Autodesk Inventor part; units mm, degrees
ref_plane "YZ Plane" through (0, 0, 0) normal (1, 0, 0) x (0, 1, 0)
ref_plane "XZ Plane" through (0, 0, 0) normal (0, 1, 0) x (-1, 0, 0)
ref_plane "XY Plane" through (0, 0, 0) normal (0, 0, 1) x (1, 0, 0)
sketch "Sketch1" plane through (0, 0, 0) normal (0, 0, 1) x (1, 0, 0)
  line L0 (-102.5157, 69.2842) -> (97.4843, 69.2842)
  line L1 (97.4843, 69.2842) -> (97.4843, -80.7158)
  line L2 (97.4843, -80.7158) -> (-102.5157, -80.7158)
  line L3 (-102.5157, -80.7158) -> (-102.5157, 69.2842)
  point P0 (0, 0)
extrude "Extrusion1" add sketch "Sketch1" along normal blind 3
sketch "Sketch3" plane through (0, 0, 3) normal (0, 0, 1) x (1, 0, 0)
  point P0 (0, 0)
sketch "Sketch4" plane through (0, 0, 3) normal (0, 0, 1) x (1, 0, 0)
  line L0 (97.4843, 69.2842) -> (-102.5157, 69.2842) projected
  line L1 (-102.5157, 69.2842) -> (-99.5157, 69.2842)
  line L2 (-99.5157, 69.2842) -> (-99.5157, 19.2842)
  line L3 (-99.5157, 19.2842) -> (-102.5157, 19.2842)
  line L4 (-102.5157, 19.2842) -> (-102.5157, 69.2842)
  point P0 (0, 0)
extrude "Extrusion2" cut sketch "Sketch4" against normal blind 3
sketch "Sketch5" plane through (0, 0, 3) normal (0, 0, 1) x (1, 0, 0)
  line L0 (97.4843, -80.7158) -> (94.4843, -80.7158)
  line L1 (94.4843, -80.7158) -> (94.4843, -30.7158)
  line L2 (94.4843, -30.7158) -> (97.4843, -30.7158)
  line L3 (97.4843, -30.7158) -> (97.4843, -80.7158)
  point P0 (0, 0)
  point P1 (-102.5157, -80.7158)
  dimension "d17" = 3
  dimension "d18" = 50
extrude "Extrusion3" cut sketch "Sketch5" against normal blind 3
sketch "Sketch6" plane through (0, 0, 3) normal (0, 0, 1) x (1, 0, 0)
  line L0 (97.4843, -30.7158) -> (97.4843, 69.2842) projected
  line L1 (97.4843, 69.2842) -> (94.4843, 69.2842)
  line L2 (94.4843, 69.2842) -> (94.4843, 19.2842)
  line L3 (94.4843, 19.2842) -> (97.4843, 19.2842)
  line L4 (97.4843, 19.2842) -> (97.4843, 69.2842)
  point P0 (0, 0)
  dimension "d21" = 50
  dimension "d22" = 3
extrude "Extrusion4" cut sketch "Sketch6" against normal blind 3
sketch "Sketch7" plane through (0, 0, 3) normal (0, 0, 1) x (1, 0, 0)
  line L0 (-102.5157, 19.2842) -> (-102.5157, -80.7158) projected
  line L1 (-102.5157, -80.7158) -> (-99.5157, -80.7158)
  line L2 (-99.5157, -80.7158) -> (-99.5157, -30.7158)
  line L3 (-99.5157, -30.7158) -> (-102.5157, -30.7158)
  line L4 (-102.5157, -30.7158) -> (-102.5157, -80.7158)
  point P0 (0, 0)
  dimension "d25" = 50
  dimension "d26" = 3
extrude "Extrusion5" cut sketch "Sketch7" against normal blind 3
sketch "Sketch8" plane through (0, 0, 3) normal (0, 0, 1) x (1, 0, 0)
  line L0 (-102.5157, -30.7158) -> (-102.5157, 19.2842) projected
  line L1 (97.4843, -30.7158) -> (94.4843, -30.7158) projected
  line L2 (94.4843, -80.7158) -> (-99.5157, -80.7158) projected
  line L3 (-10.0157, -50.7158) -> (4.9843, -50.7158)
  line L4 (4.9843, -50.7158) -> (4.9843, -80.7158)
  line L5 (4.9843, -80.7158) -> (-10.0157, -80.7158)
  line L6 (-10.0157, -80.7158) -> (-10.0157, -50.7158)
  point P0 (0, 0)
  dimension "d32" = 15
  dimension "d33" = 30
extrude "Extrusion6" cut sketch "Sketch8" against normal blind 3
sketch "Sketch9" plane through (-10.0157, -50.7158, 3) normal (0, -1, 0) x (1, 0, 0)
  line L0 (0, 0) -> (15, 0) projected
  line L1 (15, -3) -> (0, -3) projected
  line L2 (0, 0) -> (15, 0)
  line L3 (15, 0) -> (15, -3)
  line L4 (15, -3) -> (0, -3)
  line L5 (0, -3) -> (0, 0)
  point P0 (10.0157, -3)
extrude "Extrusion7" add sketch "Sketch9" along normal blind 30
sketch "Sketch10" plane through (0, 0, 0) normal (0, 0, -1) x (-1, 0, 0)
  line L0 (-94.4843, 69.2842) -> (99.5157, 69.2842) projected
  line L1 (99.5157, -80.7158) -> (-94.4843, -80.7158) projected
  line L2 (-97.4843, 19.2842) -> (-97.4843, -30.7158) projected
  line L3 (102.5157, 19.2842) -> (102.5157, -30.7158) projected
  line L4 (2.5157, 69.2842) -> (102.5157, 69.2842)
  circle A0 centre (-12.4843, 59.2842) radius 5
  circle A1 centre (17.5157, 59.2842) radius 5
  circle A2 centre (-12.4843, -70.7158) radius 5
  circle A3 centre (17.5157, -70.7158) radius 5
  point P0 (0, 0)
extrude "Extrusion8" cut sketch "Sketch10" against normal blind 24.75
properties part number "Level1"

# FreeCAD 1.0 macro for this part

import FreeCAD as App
import Part
import Sketcher
Q = App.Units.Quantity

doc = App.newDocument("Part")
body = doc.addObject("PartDesign::Body", "Body")

# Sketch on XY plane
sketch1 = doc.addObject("Sketcher::SketchObject", "Sketch")
body.addObject(sketch1)
sketch1.AttachmentSupport = (doc.XY_Plane, [""])
sketch1.MapMode = "FlatFace"
sketch1.addGeometry([
    Part.LineSegment(App.Vector(97, 69, 0), App.Vector(-103, 69, 0)),
    Part.LineSegment(App.Vector(-103, 69, 0), App.Vector(-103, -81, 0)),
    Part.LineSegment(App.Vector(-103, -81, 0), App.Vector(97, -81, 0)),
    Part.LineSegment(App.Vector(97, -81, 0), App.Vector(97, 69, 0)),
], False)
sketch1.addConstraint([
    Sketcher.Constraint("Coincident", 0, 2, 1, 1),
    Sketcher.Constraint("Coincident", 1, 2, 2, 1),
    Sketcher.Constraint("Coincident", 2, 2, 3, 1),
    Sketcher.Constraint("Coincident", 3, 2, 0, 1),
    Sketcher.Constraint("Horizontal", 0),
    Sketcher.Constraint("Vertical", 1),
    Sketcher.Constraint("Horizontal", 2),
    Sketcher.Constraint("Vertical", 3),
    Sketcher.Constraint("DistanceX", 0, 2, 0, 1, Q("200 mm")),
    Sketcher.Constraint("DistanceY", 1, 2, 1, 1, Q("150 mm")),
    Sketcher.Constraint("DistanceX", 0, 2, -1, 1, Q("102.5157 mm")),
    Sketcher.Constraint("DistanceY", -1, 1, 0, 2, Q("69.2842 mm")),
])
pad1 = doc.addObject("PartDesign::Pad", "Pad")
body.addObject(pad1)
pad1.Profile = sketch1
pad1.Length = 3

# Sketch on XY plane
sketch2 = doc.addObject("Sketcher::SketchObject", "Sketch001")
body.addObject(sketch2)
sketch2.AttachmentSupport = (doc.XY_Plane, [""])
sketch2.MapMode = "FlatFace"
sketch2.AttachmentOffset = App.Placement(App.Vector(0, 0, 3), App.Rotation())
sketch2.addGeometry([
    Part.LineSegment(App.Vector(-99.5, 19.3, 0), App.Vector(-99.5, 69.3, 0)),
    Part.LineSegment(App.Vector(-99.5, 69.3, 0), App.Vector(-102.5, 69.3, 0)),
    Part.LineSegment(App.Vector(-102.5, 69.3, 0), App.Vector(-102.5, 19.3, 0)),
    Part.LineSegment(App.Vector(-102.5, 19.3, 0), App.Vector(-99.5, 19.3, 0)),
], False)
sketch2.addConstraint([
    Sketcher.Constraint("Coincident", 0, 2, 1, 1),
    Sketcher.Constraint("Coincident", 1, 2, 2, 1),
    Sketcher.Constraint("Coincident", 2, 2, 3, 1),
    Sketcher.Constraint("Coincident", 3, 2, 0, 1),
    Sketcher.Constraint("Vertical", 0),
    Sketcher.Constraint("Horizontal", 1),
    Sketcher.Constraint("Vertical", 2),
    Sketcher.Constraint("Horizontal", 3),
    Sketcher.Constraint("DistanceX", 1, 2, 1, 1, Q("3 mm")),
    Sketcher.Constraint("DistanceY", 0, 1, 0, 2, Q("50 mm")),
    Sketcher.Constraint("DistanceX", 0, 2, -1, 1, Q("99.5157 mm")),
    Sketcher.Constraint("DistanceY", -1, 1, 0, 2, Q("69.2842 mm")),
])
pocket1 = doc.addObject("PartDesign::Pocket", "Pocket")
body.addObject(pocket1)
pocket1.Profile = sketch2
pocket1.Length = 3

# Sketch on XY plane
sketch3 = doc.addObject("Sketcher::SketchObject", "Sketch002")
body.addObject(sketch3)
sketch3.AttachmentSupport = (doc.XY_Plane, [""])
sketch3.MapMode = "FlatFace"
sketch3.AttachmentOffset = App.Placement(App.Vector(0, 0, 3), App.Rotation())
sketch3.addGeometry([
    Part.LineSegment(App.Vector(94.5, -80.7, 0), App.Vector(97.5, -80.7, 0)),
    Part.LineSegment(App.Vector(97.5, -80.7, 0), App.Vector(97.5, -30.7, 0)),
    Part.LineSegment(App.Vector(97.5, -30.7, 0), App.Vector(94.5, -30.7, 0)),
    Part.LineSegment(App.Vector(94.5, -30.7, 0), App.Vector(94.5, -80.7, 0)),
], False)
sketch3.addConstraint([
    Sketcher.Constraint("Coincident", 0, 2, 1, 1),
    Sketcher.Constraint("Coincident", 1, 2, 2, 1),
    Sketcher.Constraint("Coincident", 2, 2, 3, 1),
    Sketcher.Constraint("Coincident", 3, 2, 0, 1),
    Sketcher.Constraint("Horizontal", 0),
    Sketcher.Constraint("Vertical", 1),
    Sketcher.Constraint("Horizontal", 2),
    Sketcher.Constraint("Vertical", 3),
    Sketcher.Constraint("DistanceX", 0, 1, 0, 2, Q("3 mm")),
    Sketcher.Constraint("DistanceY", 1, 1, 1, 2, Q("50 mm")),
    Sketcher.Constraint("DistanceX", -1, 1, 0, 2, Q("97.4843 mm")),
    Sketcher.Constraint("DistanceY", 0, 2, -1, 1, Q("80.7158 mm")),
])
pocket2 = doc.addObject("PartDesign::Pocket", "Pocket001")
body.addObject(pocket2)
pocket2.Profile = sketch3
pocket2.Length = 3

# Sketch on XY plane
sketch4 = doc.addObject("Sketcher::SketchObject", "Sketch003")
body.addObject(sketch4)
sketch4.AttachmentSupport = (doc.XY_Plane, [""])
sketch4.MapMode = "FlatFace"
sketch4.AttachmentOffset = App.Placement(App.Vector(0, 0, 3), App.Rotation())
sketch4.addGeometry([
    Part.LineSegment(App.Vector(94.5, 19.3, 0), App.Vector(97.5, 19.3, 0)),
    Part.LineSegment(App.Vector(97.5, 19.3, 0), App.Vector(97.5, 69.3, 0)),
    Part.LineSegment(App.Vector(97.5, 69.3, 0), App.Vector(94.5, 69.3, 0)),
    Part.LineSegment(App.Vector(94.5, 69.3, 0), App.Vector(94.5, 19.3, 0)),
], False)
sketch4.addConstraint([
    Sketcher.Constraint("Coincident", 0, 2, 1, 1),
    Sketcher.Constraint("Coincident", 1, 2, 2, 1),
    Sketcher.Constraint("Coincident", 2, 2, 3, 1),
    Sketcher.Constraint("Coincident", 3, 2, 0, 1),
    Sketcher.Constraint("Horizontal", 0),
    Sketcher.Constraint("Vertical", 1),
    Sketcher.Constraint("Horizontal", 2),
    Sketcher.Constraint("Vertical", 3),
    Sketcher.Constraint("DistanceX", 0, 1, 0, 2, Q("3 mm")),
    Sketcher.Constraint("DistanceY", 1, 1, 1, 2, Q("50 mm")),
    Sketcher.Constraint("DistanceX", -1, 1, 0, 2, Q("97.4843 mm")),
    Sketcher.Constraint("DistanceY", -1, 1, 0, 2, Q("19.2842 mm")),
])
pocket3 = doc.addObject("PartDesign::Pocket", "Pocket002")
body.addObject(pocket3)
pocket3.Profile = sketch4
pocket3.Length = 3

# Sketch on XY plane
sketch5 = doc.addObject("Sketcher::SketchObject", "Sketch004")
body.addObject(sketch5)
sketch5.AttachmentSupport = (doc.XY_Plane, [""])
sketch5.MapMode = "FlatFace"
sketch5.AttachmentOffset = App.Placement(App.Vector(0, 0, 3), App.Rotation())
sketch5.addGeometry([
    Part.LineSegment(App.Vector(-99.5, -30.7, 0), App.Vector(-102.5, -30.7, 0)),
    Part.LineSegment(App.Vector(-102.5, -30.7, 0), App.Vector(-102.5, -80.7, 0)),
    Part.LineSegment(App.Vector(-102.5, -80.7, 0), App.Vector(-99.5, -80.7, 0)),
    Part.LineSegment(App.Vector(-99.5, -80.7, 0), App.Vector(-99.5, -30.7, 0)),
], False)
sketch5.addConstraint([
    Sketcher.Constraint("Coincident", 0, 2, 1, 1),
    Sketcher.Constraint("Coincident", 1, 2, 2, 1),
    Sketcher.Constraint("Coincident", 2, 2, 3, 1),
    Sketcher.Constraint("Coincident", 3, 2, 0, 1),
    Sketcher.Constraint("Horizontal", 0),
    Sketcher.Constraint("Vertical", 1),
    Sketcher.Constraint("Horizontal", 2),
    Sketcher.Constraint("Vertical", 3),
    Sketcher.Constraint("DistanceX", 0, 2, 0, 1, Q("3 mm")),
    Sketcher.Constraint("DistanceY", 1, 2, 1, 1, Q("50 mm")),
    Sketcher.Constraint("DistanceX", 0, 2, -1, 1, Q("102.5157 mm")),
    Sketcher.Constraint("DistanceY", 0, 2, -1, 1, Q("30.7158 mm")),
])
pocket4 = doc.addObject("PartDesign::Pocket", "Pocket003")
body.addObject(pocket4)
pocket4.Profile = sketch5
pocket4.Length = 3

# Sketch on XY plane
sketch6 = doc.addObject("Sketcher::SketchObject", "Sketch005")
body.addObject(sketch6)
sketch6.AttachmentSupport = (doc.XY_Plane, [""])
sketch6.MapMode = "FlatFace"
sketch6.AttachmentOffset = App.Placement(App.Vector(0, 0, 3), App.Rotation())
sketch6.addGeometry([
    Part.LineSegment(App.Vector(-10, -81, 0), App.Vector(5, -81, 0)),
    Part.LineSegment(App.Vector(5, -81, 0), App.Vector(5, -51, 0)),
    Part.LineSegment(App.Vector(5, -51, 0), App.Vector(-10, -51, 0)),
    Part.LineSegment(App.Vector(-10, -51, 0), App.Vector(-10, -81, 0)),
], False)
sketch6.addConstraint([
    Sketcher.Constraint("Coincident", 0, 2, 1, 1),
    Sketcher.Constraint("Coincident", 1, 2, 2, 1),
    Sketcher.Constraint("Coincident", 2, 2, 3, 1),
    Sketcher.Constraint("Coincident", 3, 2, 0, 1),
    Sketcher.Constraint("Horizontal", 0),
    Sketcher.Constraint("Vertical", 1),
    Sketcher.Constraint("Horizontal", 2),
    Sketcher.Constraint("Vertical", 3),
    Sketcher.Constraint("DistanceX", 0, 1, 0, 2, Q("15 mm")),
    Sketcher.Constraint("DistanceY", 1, 1, 1, 2, Q("30 mm")),
    Sketcher.Constraint("DistanceX", -1, 1, 0, 2, Q("4.9843 mm")),
    Sketcher.Constraint("DistanceY", 0, 2, -1, 1, Q("80.7158 mm")),
])
pocket5 = doc.addObject("PartDesign::Pocket", "Pocket004")
body.addObject(pocket5)
pocket5.Profile = sketch6
pocket5.Length = 3

# Sketch on XZ plane
sketch7 = doc.addObject("Sketcher::SketchObject", "Sketch006")
body.addObject(sketch7)
sketch7.AttachmentSupport = (doc.XZ_Plane, [""])
sketch7.MapMode = "FlatFace"
sketch7.AttachmentOffset = App.Placement(App.Vector(0, 0, 50.7158), App.Rotation())
sketch7.addGeometry([
    Part.LineSegment(App.Vector(5, 3, 0), App.Vector(-10, 3, 0)),
    Part.LineSegment(App.Vector(-10, 3, 0), App.Vector(-10, 0, 0)),
    Part.LineSegment(App.Vector(-10, 0, 0), App.Vector(5, 0, 0)),
    Part.LineSegment(App.Vector(5, 0, 0), App.Vector(5, 3, 0)),
], False)
sketch7.addConstraint([
    Sketcher.Constraint("Coincident", 0, 2, 1, 1),
    Sketcher.Constraint("Coincident", 1, 2, 2, 1),
    Sketcher.Constraint("Coincident", 2, 2, 3, 1),
    Sketcher.Constraint("Coincident", 3, 2, 0, 1),
    Sketcher.Constraint("Horizontal", 0),
    Sketcher.Constraint("Vertical", 1),
    Sketcher.Constraint("Horizontal", 2),
    Sketcher.Constraint("Vertical", 3),
    Sketcher.Constraint("PointOnObject", 1, 2, -1),
    Sketcher.Constraint("DistanceX", 0, 2, 0, 1, Q("15 mm")),
    Sketcher.Constraint("DistanceY", 1, 2, 1, 1, Q("3 mm")),
    Sketcher.Constraint("DistanceX", 0, 2, -1, 1, Q("10.0157 mm")),
])
pad2 = doc.addObject("PartDesign::Pad", "Pad001")
body.addObject(pad2)
pad2.Profile = sketch7
pad2.Length = 30

# Sketch on XY plane
sketch8 = doc.addObject("Sketcher::SketchObject", "Sketch007")
body.addObject(sketch8)
sketch8.AttachmentSupport = (doc.XY_Plane, [""])
sketch8.MapMode = "FlatFace"
sketch8.addGeometry([
    Part.Circle(App.Vector(12, 59, 0), App.Vector(0, 0, 1), 5),
    Part.Circle(App.Vector(-18, 59, 0), App.Vector(0, 0, 1), 5),
    Part.Circle(App.Vector(12, -71, 0), App.Vector(0, 0, 1), 5),
    Part.Circle(App.Vector(-18, -71, 0), App.Vector(0, 0, 1), 5),
], False)
sketch8.addConstraint([
    Sketcher.Constraint("Equal", 0, 1),
    Sketcher.Constraint("Equal", 1, 2),
    Sketcher.Constraint("Equal", 2, 3),
    Sketcher.Constraint("Horizontal", 0, 3, 1, 3),
    Sketcher.Constraint("Horizontal", 2, 3, 3, 3),
    Sketcher.Constraint("Vertical", 0, 3, 2, 3),
    Sketcher.Constraint("Vertical", 1, 3, 3, 3),
    Sketcher.Constraint("Diameter", 0, Q("10 mm")),
    Sketcher.Constraint("DistanceX", 1, 3, 0, 3, Q("30 mm")),
    Sketcher.Constraint("DistanceY", 2, 3, 0, 3, Q("130 mm")),
    Sketcher.Constraint("DistanceX", -1, 1, 0, 3, Q("12.4843 mm")),
    Sketcher.Constraint("DistanceY", -1, 1, 0, 3, Q("59.2842 mm")),
])
pocket6 = doc.addObject("PartDesign::Pocket", "Pocket005")
body.addObject(pocket6)
pocket6.Profile = sketch8
pocket6.Length = 24.75
pocket6.Reversed = True

doc.recompute()
